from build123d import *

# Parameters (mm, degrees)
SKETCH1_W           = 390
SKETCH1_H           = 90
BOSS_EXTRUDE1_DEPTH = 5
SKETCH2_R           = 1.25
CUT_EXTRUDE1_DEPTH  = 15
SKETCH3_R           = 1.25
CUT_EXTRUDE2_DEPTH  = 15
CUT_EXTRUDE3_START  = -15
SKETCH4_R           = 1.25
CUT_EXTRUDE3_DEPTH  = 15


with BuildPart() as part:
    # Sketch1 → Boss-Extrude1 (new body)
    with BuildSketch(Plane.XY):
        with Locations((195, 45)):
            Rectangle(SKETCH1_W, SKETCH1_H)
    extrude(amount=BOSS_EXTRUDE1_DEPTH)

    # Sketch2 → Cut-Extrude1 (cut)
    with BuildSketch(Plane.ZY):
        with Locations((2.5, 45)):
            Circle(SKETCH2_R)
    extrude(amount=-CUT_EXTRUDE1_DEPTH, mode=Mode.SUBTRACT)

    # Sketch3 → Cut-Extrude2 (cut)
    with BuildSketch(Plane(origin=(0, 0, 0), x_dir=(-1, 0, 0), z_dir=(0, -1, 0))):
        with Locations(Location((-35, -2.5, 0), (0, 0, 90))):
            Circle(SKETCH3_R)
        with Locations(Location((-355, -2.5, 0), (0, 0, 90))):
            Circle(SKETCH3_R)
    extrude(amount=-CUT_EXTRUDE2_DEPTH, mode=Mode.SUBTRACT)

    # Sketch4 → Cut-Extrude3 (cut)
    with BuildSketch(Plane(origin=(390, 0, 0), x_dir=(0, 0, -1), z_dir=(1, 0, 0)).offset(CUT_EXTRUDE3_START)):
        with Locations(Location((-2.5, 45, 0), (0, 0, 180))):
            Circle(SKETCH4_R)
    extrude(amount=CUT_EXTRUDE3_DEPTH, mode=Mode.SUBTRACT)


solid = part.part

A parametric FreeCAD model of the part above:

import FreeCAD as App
import Part
import Sketcher
from FreeCAD import Vector
Q = App.Units.Quantity


def add_polygon(sketch, points):
    """Adds a closed chain of lines whose ends are joined by coincident constraints."""
    first, n = sketch.GeometryCount, len(points)
    for a, b in zip(points, points[1:] + points[:1]):
        sketch.addGeometry(Part.LineSegment(App.Vector(*a, 0), App.Vector(*b, 0)), False)
    for i in range(n):
        sketch.addConstraint(Sketcher.Constraint("Coincident", first + i, 2, first + (i + 1) % n, 1))

doc = App.newDocument("Part")
body = doc.addObject("PartDesign::Body", "Body")

# Sketch on XY plane
sketch1 = body.newObject("Sketcher::SketchObject", "Sketch")
sketch1.AttachmentSupport = (doc.getObject("XY_Plane"), [""])
sketch1.MapMode = "FlatFace"
add_polygon(sketch1, [(0, 90), (0, 0), (390, 0), (390, 90)])  # lines 0-3
sketch1.addConstraint(Sketcher.Constraint("Vertical", 0))
sketch1.addConstraint(Sketcher.Constraint("Horizontal", 1))
sketch1.addConstraint(Sketcher.Constraint("Vertical", 2))
sketch1.addConstraint(Sketcher.Constraint("Horizontal", 3))
sketch1.addConstraint(Sketcher.Constraint("Coincident", 0, 2, -1, 1))
sketch1.addConstraint(Sketcher.Constraint("DistanceX", 1, 1, 1, 2, Q("390 mm")))
sketch1.addConstraint(Sketcher.Constraint("DistanceY", 0, 2, 0, 1, Q("90 mm")))
pad1 = body.newObject("PartDesign::Pad", "Pad")
pad1.Profile = sketch1
pad1.Length = 5

# Sketch on YZ plane
sketch2 = body.newObject("Sketcher::SketchObject", "Sketch001")
sketch2.AttachmentSupport = (doc.getObject("YZ_Plane"), [""])
sketch2.MapMode = "FlatFace"
sketch2.addGeometry(Part.Circle(Vector(45, 2.5, 0), Vector(0, 0, 1), 1.2), False)
sketch2.addConstraint(Sketcher.Constraint("Diameter", 0, Q("2.5 mm")))
sketch2.addConstraint(Sketcher.Constraint("DistanceX", -1, 1, 0, 3, Q("45 mm")))
sketch2.addConstraint(Sketcher.Constraint("DistanceY", -1, 1, 0, 3, Q("2.5 mm")))
pocket1 = body.newObject("PartDesign::Pocket", "Pocket")
pocket1.Profile = sketch2
pocket1.Length = 15
pocket1.Reversed = True

# Sketch on XZ plane
sketch3 = body.newObject("Sketcher::SketchObject", "Sketch002")
sketch3.AttachmentSupport = (doc.getObject("XZ_Plane"), [""])
sketch3.MapMode = "FlatFace"
sketch3.addGeometry(Part.Circle(Vector(35, 2.5, 0), Vector(0, 0, 1), 1.2), False)
sketch3.addGeometry(Part.Circle(Vector(355, 2.5, 0), Vector(0, 0, 1), 1.2), False)
sketch3.addConstraint(Sketcher.Constraint("Equal", 0, 1))
sketch3.addConstraint(Sketcher.Constraint("Horizontal", 0, 3, 1, 3))
sketch3.addConstraint(Sketcher.Constraint("Diameter", 0, Q("2.5 mm")))
sketch3.addConstraint(Sketcher.Constraint("DistanceX", -1, 1, 0, 3, Q("35 mm")))
sketch3.addConstraint(Sketcher.Constraint("DistanceX", -1, 1, 1, 3, Q("355 mm")))
sketch3.addConstraint(Sketcher.Constraint("DistanceY", -1, 1, 0, 3, Q("2.5 mm")))
pocket2 = body.newObject("PartDesign::Pocket", "Pocket001")
pocket2.Profile = sketch3
pocket2.Length = 15

# Sketch on YZ plane
sketch4 = body.newObject("Sketcher::SketchObject", "Sketch003")
sketch4.AttachmentSupport = (doc.getObject("YZ_Plane"), [""])
sketch4.MapMode = "FlatFace"
sketch4.AttachmentOffset = App.Placement(Vector(0, 0, 375), App.Rotation())
sketch4.addGeometry(Part.Circle(Vector(45, 2.5, 0), Vector(0, 0, 1), 1.2), False)
sketch4.addConstraint(Sketcher.Constraint("Diameter", 0, Q("2.5 mm")))
sketch4.addConstraint(Sketcher.Constraint("DistanceX", -1, 1, 0, 3, Q("45 mm")))
sketch4.addConstraint(Sketcher.Constraint("DistanceY", -1, 1, 0, 3, Q("2.5 mm")))
pocket3 = body.newObject("PartDesign::Pocket", "Pocket002")
pocket3.Profile = sketch4
pocket3.Length = 15
pocket3.Reversed = True

doc.recompute()
